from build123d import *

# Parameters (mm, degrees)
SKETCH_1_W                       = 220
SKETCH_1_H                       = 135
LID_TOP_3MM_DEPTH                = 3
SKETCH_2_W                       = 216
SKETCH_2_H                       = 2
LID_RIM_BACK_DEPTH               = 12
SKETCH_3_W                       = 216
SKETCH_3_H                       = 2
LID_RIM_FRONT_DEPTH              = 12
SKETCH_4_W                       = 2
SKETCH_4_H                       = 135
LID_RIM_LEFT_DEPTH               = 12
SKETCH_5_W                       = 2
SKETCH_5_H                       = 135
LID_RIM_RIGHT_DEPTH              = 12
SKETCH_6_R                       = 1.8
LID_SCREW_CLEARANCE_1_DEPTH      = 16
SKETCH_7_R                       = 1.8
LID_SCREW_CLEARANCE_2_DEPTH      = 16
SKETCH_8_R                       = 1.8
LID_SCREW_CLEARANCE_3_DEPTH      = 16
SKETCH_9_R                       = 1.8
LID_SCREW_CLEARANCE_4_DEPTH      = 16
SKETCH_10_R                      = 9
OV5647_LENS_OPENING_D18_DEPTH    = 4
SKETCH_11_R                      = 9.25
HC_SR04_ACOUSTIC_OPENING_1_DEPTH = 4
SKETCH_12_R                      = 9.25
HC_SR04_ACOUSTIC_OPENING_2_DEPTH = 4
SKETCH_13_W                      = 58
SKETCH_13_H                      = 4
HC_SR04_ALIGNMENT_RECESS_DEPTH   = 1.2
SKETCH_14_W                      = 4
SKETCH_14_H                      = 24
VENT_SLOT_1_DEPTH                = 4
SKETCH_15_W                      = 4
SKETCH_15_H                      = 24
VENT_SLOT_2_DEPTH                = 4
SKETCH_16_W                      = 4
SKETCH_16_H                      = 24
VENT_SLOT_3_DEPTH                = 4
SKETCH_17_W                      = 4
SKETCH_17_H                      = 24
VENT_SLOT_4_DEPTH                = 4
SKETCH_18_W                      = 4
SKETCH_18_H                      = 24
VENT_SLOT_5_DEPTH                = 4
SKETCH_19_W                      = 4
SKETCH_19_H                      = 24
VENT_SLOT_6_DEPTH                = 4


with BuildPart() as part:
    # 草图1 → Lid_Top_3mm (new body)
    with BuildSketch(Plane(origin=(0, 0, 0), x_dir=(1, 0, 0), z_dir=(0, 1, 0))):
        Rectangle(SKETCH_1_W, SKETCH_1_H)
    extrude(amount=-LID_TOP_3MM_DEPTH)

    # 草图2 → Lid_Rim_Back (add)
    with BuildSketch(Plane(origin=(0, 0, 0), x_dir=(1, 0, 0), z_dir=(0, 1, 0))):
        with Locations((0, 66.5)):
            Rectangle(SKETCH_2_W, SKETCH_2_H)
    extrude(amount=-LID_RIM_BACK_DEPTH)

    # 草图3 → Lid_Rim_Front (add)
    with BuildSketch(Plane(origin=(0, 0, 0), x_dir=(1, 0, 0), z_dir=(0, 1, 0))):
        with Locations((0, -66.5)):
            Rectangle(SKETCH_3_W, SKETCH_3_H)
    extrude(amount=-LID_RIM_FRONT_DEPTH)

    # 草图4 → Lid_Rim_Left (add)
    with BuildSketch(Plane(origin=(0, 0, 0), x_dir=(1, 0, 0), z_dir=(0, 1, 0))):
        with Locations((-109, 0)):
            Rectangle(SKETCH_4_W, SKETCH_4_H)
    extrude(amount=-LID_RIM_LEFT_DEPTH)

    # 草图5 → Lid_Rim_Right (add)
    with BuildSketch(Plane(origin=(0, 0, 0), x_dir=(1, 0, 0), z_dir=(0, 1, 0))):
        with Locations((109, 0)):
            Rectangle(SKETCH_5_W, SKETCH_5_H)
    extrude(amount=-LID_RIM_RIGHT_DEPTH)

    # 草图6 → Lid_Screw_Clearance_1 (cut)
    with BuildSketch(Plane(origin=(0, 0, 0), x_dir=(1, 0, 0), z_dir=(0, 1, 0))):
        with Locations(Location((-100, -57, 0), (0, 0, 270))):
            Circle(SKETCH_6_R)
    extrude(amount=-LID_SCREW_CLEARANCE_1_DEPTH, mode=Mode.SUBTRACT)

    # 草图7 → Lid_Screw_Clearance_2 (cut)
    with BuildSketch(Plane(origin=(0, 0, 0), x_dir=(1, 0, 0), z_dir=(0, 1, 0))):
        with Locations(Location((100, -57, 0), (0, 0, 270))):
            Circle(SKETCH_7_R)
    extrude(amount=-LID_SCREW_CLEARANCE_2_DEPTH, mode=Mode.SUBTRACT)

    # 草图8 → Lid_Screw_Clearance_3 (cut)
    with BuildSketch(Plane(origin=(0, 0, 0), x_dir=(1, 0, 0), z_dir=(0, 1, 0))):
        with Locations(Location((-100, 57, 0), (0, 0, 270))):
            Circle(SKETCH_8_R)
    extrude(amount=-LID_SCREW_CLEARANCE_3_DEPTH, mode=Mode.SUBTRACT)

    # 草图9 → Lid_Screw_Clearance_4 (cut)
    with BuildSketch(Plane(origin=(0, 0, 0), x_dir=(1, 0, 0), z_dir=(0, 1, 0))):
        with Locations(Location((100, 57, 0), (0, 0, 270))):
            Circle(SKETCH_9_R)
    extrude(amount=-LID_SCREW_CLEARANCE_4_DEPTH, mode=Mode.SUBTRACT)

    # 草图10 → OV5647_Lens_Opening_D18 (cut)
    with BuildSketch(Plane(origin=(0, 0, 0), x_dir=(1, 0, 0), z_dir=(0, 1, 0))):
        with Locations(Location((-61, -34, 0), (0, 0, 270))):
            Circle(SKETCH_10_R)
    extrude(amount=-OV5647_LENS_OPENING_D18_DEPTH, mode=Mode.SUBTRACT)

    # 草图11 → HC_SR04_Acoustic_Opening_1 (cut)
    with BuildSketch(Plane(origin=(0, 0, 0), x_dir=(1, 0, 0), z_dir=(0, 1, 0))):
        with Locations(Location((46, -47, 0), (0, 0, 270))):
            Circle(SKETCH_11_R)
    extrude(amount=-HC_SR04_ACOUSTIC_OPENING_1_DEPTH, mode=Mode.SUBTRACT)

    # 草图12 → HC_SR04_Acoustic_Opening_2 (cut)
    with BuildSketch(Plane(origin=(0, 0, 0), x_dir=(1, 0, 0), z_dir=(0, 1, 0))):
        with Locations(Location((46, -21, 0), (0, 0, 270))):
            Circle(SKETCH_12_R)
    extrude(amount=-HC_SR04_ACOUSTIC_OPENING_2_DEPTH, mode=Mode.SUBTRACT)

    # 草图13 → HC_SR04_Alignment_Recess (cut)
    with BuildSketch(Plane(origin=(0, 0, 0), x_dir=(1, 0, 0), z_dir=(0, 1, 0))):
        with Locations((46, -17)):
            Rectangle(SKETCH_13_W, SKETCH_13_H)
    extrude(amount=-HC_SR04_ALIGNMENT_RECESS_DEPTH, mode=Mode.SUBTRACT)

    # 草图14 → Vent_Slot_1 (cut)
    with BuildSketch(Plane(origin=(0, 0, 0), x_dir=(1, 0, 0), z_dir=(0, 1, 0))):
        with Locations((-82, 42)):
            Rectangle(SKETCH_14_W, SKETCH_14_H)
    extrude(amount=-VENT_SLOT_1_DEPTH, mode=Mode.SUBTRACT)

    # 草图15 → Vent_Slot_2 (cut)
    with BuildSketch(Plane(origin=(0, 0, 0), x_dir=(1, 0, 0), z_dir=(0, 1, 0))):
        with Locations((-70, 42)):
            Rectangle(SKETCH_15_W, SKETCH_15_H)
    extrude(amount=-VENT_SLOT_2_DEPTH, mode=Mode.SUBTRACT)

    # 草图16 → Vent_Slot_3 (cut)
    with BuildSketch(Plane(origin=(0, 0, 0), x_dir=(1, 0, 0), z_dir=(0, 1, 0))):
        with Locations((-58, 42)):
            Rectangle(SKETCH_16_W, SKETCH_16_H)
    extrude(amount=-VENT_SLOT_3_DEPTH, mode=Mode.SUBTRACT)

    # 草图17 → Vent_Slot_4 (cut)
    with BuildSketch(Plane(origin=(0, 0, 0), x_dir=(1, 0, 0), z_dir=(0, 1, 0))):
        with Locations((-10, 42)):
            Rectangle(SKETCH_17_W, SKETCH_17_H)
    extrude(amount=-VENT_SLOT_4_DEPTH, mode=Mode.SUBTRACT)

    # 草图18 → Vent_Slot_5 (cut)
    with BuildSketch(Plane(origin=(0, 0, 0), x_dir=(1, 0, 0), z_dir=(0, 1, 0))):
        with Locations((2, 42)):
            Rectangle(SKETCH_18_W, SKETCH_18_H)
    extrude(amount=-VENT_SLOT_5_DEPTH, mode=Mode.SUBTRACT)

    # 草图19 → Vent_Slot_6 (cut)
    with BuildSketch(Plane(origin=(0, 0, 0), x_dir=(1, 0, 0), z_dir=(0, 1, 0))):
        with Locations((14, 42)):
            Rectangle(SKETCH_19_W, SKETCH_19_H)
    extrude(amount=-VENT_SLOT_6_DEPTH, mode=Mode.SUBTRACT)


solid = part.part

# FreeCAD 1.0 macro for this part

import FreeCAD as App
import Part
import Sketcher
from FreeCAD import Vector
Q = App.Units.Quantity


def add_polygon(sketch, points):
    """Adds a closed chain of lines whose ends are joined by coincident constraints."""
    first, n = sketch.GeometryCount, len(points)
    for a, b in zip(points, points[1:] + points[:1]):
        sketch.addGeometry(Part.LineSegment(App.Vector(*a, 0), App.Vector(*b, 0)), False)
    for i in range(n):
        sketch.addConstraint(Sketcher.Constraint("Coincident", first + i, 2, first + (i + 1) % n, 1))

doc = App.newDocument("Part")
params = doc.addObject("Spreadsheet::Sheet", "Params")
for row, (alias, value) in enumerate([
    ("sketch1_width", "220 mm"),
    ("sketch1_height", "135 mm"),
    ("pad1_length", "3 mm"),
    ("sketch2_width", "216 mm"),
    ("sketch2_height", "2 mm"),
    ("pad2_length", "12 mm"),
    ("sketch3_width", "216 mm"),
    ("sketch3_height", "2 mm"),
    ("pad3_length", "12 mm"),
    ("sketch4_width", "2 mm"),
    ("sketch4_height", "135 mm"),
    ("pad4_length", "12 mm"),
    ("sketch5_width", "2 mm"),
    ("sketch5_height", "135 mm"),
    ("pad5_length", "12 mm"),
    ("sketch6_diameter", "3.6 mm"),
    ("pocket1_length", "16 mm"),
    ("sketch7_diameter", "3.6 mm"),
    ("pocket2_length", "16 mm"),
    ("sketch8_diameter", "3.6 mm"),
    ("pocket3_length", "16 mm"),
    ("sketch9_diameter", "3.6 mm"),
    ("pocket4_length", "16 mm"),
    ("sketch10_diameter", "18 mm"),
    ("pocket5_length", "4 mm"),
    ("sketch11_diameter", "18.5 mm"),
    ("pocket6_length", "4 mm"),
    ("sketch12_diameter", "18.5 mm"),
    ("pocket7_length", "4 mm"),
    ("sketch13_width", "58 mm"),
    ("sketch13_height", "4 mm"),
    ("pocket8_length", "1.2 mm"),
    ("sketch14_width", "4 mm"),
    ("sketch14_height", "24 mm"),
    ("pocket9_length", "4 mm"),
    ("sketch15_width", "4 mm"),
    ("sketch15_height", "24 mm"),
    ("pocket10_length", "4 mm"),
    ("sketch16_width", "4 mm"),
    ("sketch16_height", "24 mm"),
    ("pocket11_length", "4 mm"),
    ("sketch17_width", "4 mm"),
    ("sketch17_height", "24 mm"),
    ("pocket12_length", "4 mm"),
    ("sketch18_width", "4 mm"),
    ("sketch18_height", "24 mm"),
    ("pocket13_length", "4 mm"),
    ("sketch19_width", "4 mm"),
    ("sketch19_height", "24 mm"),
    ("pocket14_length", "4 mm"),
], start=1):
    params.set(f"A{row}", alias)
    params.set(f"B{row}", "=" + value)
    params.setAlias(f"B{row}", alias)

body = doc.addObject("PartDesign::Body", "Body")

sketch1 = doc.addObject("Sketcher::SketchObject", "Sketch")
body.addObject(sketch1)
sketch1.AttachmentSupport = (doc.XZ_Plane, [""])
sketch1.MapMode = "FlatFace"
add_polygon(sketch1, [(-110, -67.5), (-110, 67.5), (110, 67.5), (110, -67.5)])
sketch1.addConstraint([
    Sketcher.Constraint("Vertical", 0),
    Sketcher.Constraint("Horizontal", 1),
    Sketcher.Constraint("Vertical", 2),
    Sketcher.Constraint("Horizontal", 3),
    Sketcher.Constraint("Symmetric", 0, 2, 2, 2, -1, 1),
    Sketcher.Constraint("DistanceX", 1, 1, 1, 2, Q("220 mm")),
    Sketcher.Constraint("DistanceY", 0, 1, 0, 2, Q("135 mm")),
])
sketch1.setExpression("Constraints[9]", "Params.sketch1_width")
sketch1.setExpression("Constraints[10]", "Params.sketch1_height")
pad1 = doc.addObject("PartDesign::Pad", "Pad")
body.addObject(pad1)
pad1.Profile = sketch1
pad1.setExpression("Length", "Params.pad1_length")

sketch2 = doc.addObject("Sketcher::SketchObject", "Sketch001")
body.addObject(sketch2)
sketch2.AttachmentSupport = (doc.XZ_Plane, [""])
sketch2.MapMode = "FlatFace"
add_polygon(sketch2, [(-108, -67.5), (-108, -65.5), (108, -65.5), (108, -67.5)])
sketch2.addConstraint([
    Sketcher.Constraint("Vertical", 0),
    Sketcher.Constraint("Horizontal", 1),
    Sketcher.Constraint("Vertical", 2),
    Sketcher.Constraint("Horizontal", 3),
    Sketcher.Constraint("DistanceX", 1, 1, 1, 2, Q("216 mm")),
    Sketcher.Constraint("DistanceY", 0, 1, 0, 2, Q("2 mm")),
    Sketcher.Constraint("DistanceX", 0, 2, -1, 1, Q("108 mm")),
    Sketcher.Constraint("DistanceY", 0, 2, -1, 1, Q("65.5 mm")),
])
sketch2.setExpression("Constraints[8]", "Params.sketch2_width")
sketch2.setExpression("Constraints[9]", "Params.sketch2_height")
pad2 = doc.addObject("PartDesign::Pad", "Pad001")
body.addObject(pad2)
pad2.Profile = sketch2
pad2.setExpression("Length", "Params.pad2_length")

sketch3 = doc.addObject("Sketcher::SketchObject", "Sketch002")
body.addObject(sketch3)
sketch3.AttachmentSupport = (doc.XZ_Plane, [""])
sketch3.MapMode = "FlatFace"
add_polygon(sketch3, [(-108, 65.5), (-108, 67.5), (108, 67.5), (108, 65.5)])
sketch3.addConstraint([
    Sketcher.Constraint("Vertical", 0),
    Sketcher.Constraint("Horizontal", 1),
    Sketcher.Constraint("Vertical", 2),
    Sketcher.Constraint("Horizontal", 3),
    Sketcher.Constraint("DistanceX", 1, 1, 1, 2, Q("216 mm")),
    Sketcher.Constraint("DistanceY", 0, 1, 0, 2, Q("2 mm")),
    Sketcher.Constraint("DistanceX", 0, 2, -1, 1, Q("108 mm")),
    Sketcher.Constraint("DistanceY", -1, 1, 0, 2, Q("67.5 mm")),
])
sketch3.setExpression("Constraints[8]", "Params.sketch3_width")
sketch3.setExpression("Constraints[9]", "Params.sketch3_height")
pad3 = doc.addObject("PartDesign::Pad", "Pad002")
body.addObject(pad3)
pad3.Profile = sketch3
pad3.setExpression("Length", "Params.pad3_length")

sketch4 = doc.addObject("Sketcher::SketchObject", "Sketch003")
body.addObject(sketch4)
sketch4.AttachmentSupport = (doc.XZ_Plane, [""])
sketch4.MapMode = "FlatFace"
add_polygon(sketch4, [(-110, -67.5), (-110, 67.5), (-108, 67.5), (-108, -67.5)])
sketch4.addConstraint([
    Sketcher.Constraint("Vertical", 0),
    Sketcher.Constraint("Horizontal", 1),
    Sketcher.Constraint("Vertical", 2),
    Sketcher.Constraint("Horizontal", 3),
    Sketcher.Constraint("DistanceX", 1, 1, 1, 2, Q("2 mm")),
    Sketcher.Constraint("DistanceY", 0, 1, 0, 2, Q("135 mm")),
    Sketcher.Constraint("DistanceX", 0, 2, -1, 1, Q("110 mm")),
    Sketcher.Constraint("DistanceY", -1, 1, 0, 2, Q("67.5 mm")),
])
sketch4.setExpression("Constraints[8]", "Params.sketch4_width")
sketch4.setExpression("Constraints[9]", "Params.sketch4_height")
pad4 = doc.addObject("PartDesign::Pad", "Pad003")
body.addObject(pad4)
pad4.Profile = sketch4
pad4.setExpression("Length", "Params.pad4_length")

sketch5 = doc.addObject("Sketcher::SketchObject", "Sketch004")
body.addObject(sketch5)
sketch5.AttachmentSupport = (doc.XZ_Plane, [""])
sketch5.MapMode = "FlatFace"
add_polygon(sketch5, [(108, -67.5), (108, 67.5), (110, 67.5), (110, -67.5)])
sketch5.addConstraint([
    Sketcher.Constraint("Vertical", 0),
    Sketcher.Constraint("Horizontal", 1),
    Sketcher.Constraint("Vertical", 2),
    Sketcher.Constraint("Horizontal", 3),
    Sketcher.Constraint("DistanceX", 1, 1, 1, 2, Q("2 mm")),
    Sketcher.Constraint("DistanceY", 0, 1, 0, 2, Q("135 mm")),
    Sketcher.Constraint("DistanceX", -1, 1, 0, 2, Q("108 mm")),
    Sketcher.Constraint("DistanceY", -1, 1, 0, 2, Q("67.5 mm")),
])
sketch5.setExpression("Constraints[8]", "Params.sketch5_width")
sketch5.setExpression("Constraints[9]", "Params.sketch5_height")
pad5 = doc.addObject("PartDesign::Pad", "Pad004")
body.addObject(pad5)
pad5.Profile = sketch5
pad5.setExpression("Length", "Params.pad5_length")

sketch6 = doc.addObject("Sketcher::SketchObject", "Sketch005")
body.addObject(sketch6)
sketch6.AttachmentSupport = (doc.XZ_Plane, [""])
sketch6.MapMode = "FlatFace"
sketch6.addGeometry(Part.Circle(Vector(-100, 57, 0), Vector(0, 0, 1), 1.8), False)
sketch6.addConstraint([
    Sketcher.Constraint("Diameter", 0, Q("3.6 mm")),
    Sketcher.Constraint("DistanceX", 0, 3, -1, 1, Q("100 mm")),
    Sketcher.Constraint("DistanceY", -1, 1, 0, 3, Q("57 mm")),
])
sketch6.setExpression("Constraints[0]", "Params.sketch6_diameter")
pocket1 = doc.addObject("PartDesign::Pocket", "Pocket")
body.addObject(pocket1)
pocket1.Profile = sketch6
pocket1.setExpression("Length", "Params.pocket1_length")
pocket1.Reversed = True

sketch7 = doc.addObject("Sketcher::SketchObject", "Sketch006")
body.addObject(sketch7)
sketch7.AttachmentSupport = (doc.XZ_Plane, [""])
sketch7.MapMode = "FlatFace"
sketch7.addGeometry(Part.Circle(Vector(100, 57, 0), Vector(0, 0, 1), 1.8), False)
sketch7.addConstraint([
    Sketcher.Constraint("Diameter", 0, Q("3.6 mm")),
    Sketcher.Constraint("DistanceX", -1, 1, 0, 3, Q("100 mm")),
    Sketcher.Constraint("DistanceY", -1, 1, 0, 3, Q("57 mm")),
])
sketch7.setExpression("Constraints[0]", "Params.sketch7_diameter")
pocket2 = doc.addObject("PartDesign::Pocket", "Pocket001")
body.addObject(pocket2)
pocket2.Profile = sketch7
pocket2.setExpression("Length", "Params.pocket2_length")
pocket2.Reversed = True

sketch8 = doc.addObject("Sketcher::SketchObject", "Sketch007")
body.addObject(sketch8)
sketch8.AttachmentSupport = (doc.XZ_Plane, [""])
sketch8.MapMode = "FlatFace"
sketch8.addGeometry(Part.Circle(Vector(-100, -57, 0), Vector(0, 0, 1), 1.8), False)
sketch8.addConstraint([
    Sketcher.Constraint("Diameter", 0, Q("3.6 mm")),
    Sketcher.Constraint("DistanceX", 0, 3, -1, 1, Q("100 mm")),
    Sketcher.Constraint("DistanceY", 0, 3, -1, 1, Q("57 mm")),
])
sketch8.setExpression("Constraints[0]", "Params.sketch8_diameter")
pocket3 = doc.addObject("PartDesign::Pocket", "Pocket002")
body.addObject(pocket3)
pocket3.Profile = sketch8
pocket3.setExpression("Length", "Params.pocket3_length")
pocket3.Reversed = True

sketch9 = doc.addObject("Sketcher::SketchObject", "Sketch008")
body.addObject(sketch9)
sketch9.AttachmentSupport = (doc.XZ_Plane, [""])
sketch9.MapMode = "FlatFace"
sketch9.addGeometry(Part.Circle(Vector(100, -57, 0), Vector(0, 0, 1), 1.8), False)
sketch9.addConstraint([
    Sketcher.Constraint("Diameter", 0, Q("3.6 mm")),
    Sketcher.Constraint("DistanceX", -1, 1, 0, 3, Q("100 mm")),
    Sketcher.Constraint("DistanceY", 0, 3, -1, 1, Q("57 mm")),
])
sketch9.setExpression("Constraints[0]", "Params.sketch9_diameter")
pocket4 = doc.addObject("PartDesign::Pocket", "Pocket003")
body.addObject(pocket4)
pocket4.Profile = sketch9
pocket4.setExpression("Length", "Params.pocket4_length")
pocket4.Reversed = True

sketch10 = doc.addObject("Sketcher::SketchObject", "Sketch009")
body.addObject(sketch10)
sketch10.AttachmentSupport = (doc.XZ_Plane, [""])
sketch10.MapMode = "FlatFace"
sketch10.addGeometry(Part.Circle(Vector(-61, 34, 0), Vector(0, 0, 1), 9), False)
sketch10.addConstraint([
    Sketcher.Constraint("Diameter", 0, Q("18 mm")),
    Sketcher.Constraint("DistanceX", 0, 3, -1, 1, Q("61 mm")),
    Sketcher.Constraint("DistanceY", -1, 1, 0, 3, Q("34 mm")),
])
sketch10.setExpression("Constraints[0]", "Params.sketch10_diameter")
pocket5 = doc.addObject("PartDesign::Pocket", "Pocket004")
body.addObject(pocket5)
pocket5.Profile = sketch10
pocket5.setExpression("Length", "Params.pocket5_length")
pocket5.Reversed = True

sketch11 = doc.addObject("Sketcher::SketchObject", "Sketch010")
body.addObject(sketch11)
sketch11.AttachmentSupport = (doc.XZ_Plane, [""])
sketch11.MapMode = "FlatFace"
sketch11.addGeometry(Part.Circle(Vector(46, 47, 0), Vector(0, 0, 1), 9.25), False)
sketch11.addConstraint([
    Sketcher.Constraint("Diameter", 0, Q("18.5 mm")),
    Sketcher.Constraint("DistanceX", -1, 1, 0, 3, Q("46 mm")),
    Sketcher.Constraint("DistanceY", -1, 1, 0, 3, Q("47 mm")),
])
sketch11.setExpression("Constraints[0]", "Params.sketch11_diameter")
pocket6 = doc.addObject("PartDesign::Pocket", "Pocket005")
body.addObject(pocket6)
pocket6.Profile = sketch11
pocket6.setExpression("Length", "Params.pocket6_length")
pocket6.Reversed = True

sketch12 = doc.addObject("Sketcher::SketchObject", "Sketch011")
body.addObject(sketch12)
sketch12.AttachmentSupport = (doc.XZ_Plane, [""])
sketch12.MapMode = "FlatFace"
sketch12.addGeometry(Part.Circle(Vector(46, 21, 0), Vector(0, 0, 1), 9.25), False)
sketch12.addConstraint([
    Sketcher.Constraint("Diameter", 0, Q("18.5 mm")),
    Sketcher.Constraint("DistanceX", -1, 1, 0, 3, Q("46 mm")),
    Sketcher.Constraint("DistanceY", -1, 1, 0, 3, Q("21 mm")),
])
sketch12.setExpression("Constraints[0]", "Params.sketch12_diameter")
pocket7 = doc.addObject("PartDesign::Pocket", "Pocket006")
body.addObject(pocket7)
pocket7.Profile = sketch12
pocket7.setExpression("Length", "Params.pocket7_length")
pocket7.Reversed = True

sketch13 = doc.addObject("Sketcher::SketchObject", "Sketch012")
body.addObject(sketch13)
sketch13.AttachmentSupport = (doc.XZ_Plane, [""])
sketch13.MapMode = "FlatFace"
add_polygon(sketch13, [(17, 15), (17, 19), (75, 19), (75, 15)])
sketch13.addConstraint([
    Sketcher.Constraint("Vertical", 0),
    Sketcher.Constraint("Horizontal", 1),
    Sketcher.Constraint("Vertical", 2),
    Sketcher.Constraint("Horizontal", 3),
    Sketcher.Constraint("DistanceX", 1, 1, 1, 2, Q("58 mm")),
    Sketcher.Constraint("DistanceY", 0, 1, 0, 2, Q("4 mm")),
    Sketcher.Constraint("DistanceX", -1, 1, 0, 2, Q("17 mm")),
    Sketcher.Constraint("DistanceY", -1, 1, 0, 2, Q("19 mm")),
])
sketch13.setExpression("Constraints[8]", "Params.sketch13_width")
sketch13.setExpression("Constraints[9]", "Params.sketch13_height")
pocket8 = doc.addObject("PartDesign::Pocket", "Pocket007")
body.addObject(pocket8)
pocket8.Profile = sketch13
pocket8.setExpression("Length", "Params.pocket8_length")
pocket8.Reversed = True

sketch14 = doc.addObject("Sketcher::SketchObject", "Sketch013")
body.addObject(sketch14)
sketch14.AttachmentSupport = (doc.XZ_Plane, [""])
sketch14.MapMode = "FlatFace"
add_polygon(sketch14, [(-84, -54), (-84, -30), (-80, -30), (-80, -54)])
sketch14.addConstraint([
    Sketcher.Constraint("Vertical", 0),
    Sketcher.Constraint("Horizontal", 1),
    Sketcher.Constraint("Vertical", 2),
    Sketcher.Constraint("Horizontal", 3),
    Sketcher.Constraint("DistanceX", 1, 1, 1, 2, Q("4 mm")),
    Sketcher.Constraint("DistanceY", 0, 1, 0, 2, Q("24 mm")),
    Sketcher.Constraint("DistanceX", 0, 2, -1, 1, Q("84 mm")),
    Sketcher.Constraint("DistanceY", 0, 2, -1, 1, Q("30 mm")),
])
sketch14.setExpression("Constraints[8]", "Params.sketch14_width")
sketch14.setExpression("Constraints[9]", "Params.sketch14_height")
pocket9 = doc.addObject("PartDesign::Pocket", "Pocket008")
body.addObject(pocket9)
pocket9.Profile = sketch14
pocket9.setExpression("Length", "Params.pocket9_length")
pocket9.Reversed = True

sketch15 = doc.addObject("Sketcher::SketchObject", "Sketch014")
body.addObject(sketch15)
sketch15.AttachmentSupport = (doc.XZ_Plane, [""])
sketch15.MapMode = "FlatFace"
add_polygon(sketch15, [(-72, -54), (-72, -30), (-68, -30), (-68, -54)])
sketch15.addConstraint([
    Sketcher.Constraint("Vertical", 0),
    Sketcher.Constraint("Horizontal", 1),
    Sketcher.Constraint("Vertical", 2),
    Sketcher.Constraint("Horizontal", 3),
    Sketcher.Constraint("DistanceX", 1, 1, 1, 2, Q("4 mm")),
    Sketcher.Constraint("DistanceY", 0, 1, 0, 2, Q("24 mm")),
    Sketcher.Constraint("DistanceX", 0, 2, -1, 1, Q("72 mm")),
    Sketcher.Constraint("DistanceY", 0, 2, -1, 1, Q("30 mm")),
])
sketch15.setExpression("Constraints[8]", "Params.sketch15_width")
sketch15.setExpression("Constraints[9]", "Params.sketch15_height")
pocket10 = doc.addObject("PartDesign::Pocket", "Pocket009")
body.addObject(pocket10)
pocket10.Profile = sketch15
pocket10.setExpression("Length", "Params.pocket10_length")
pocket10.Reversed = True

sketch16 = doc.addObject("Sketcher::SketchObject", "Sketch015")
body.addObject(sketch16)
sketch16.AttachmentSupport = (doc.XZ_Plane, [""])
sketch16.MapMode = "FlatFace"
add_polygon(sketch16, [(-60, -54), (-60, -30), (-56, -30), (-56, -54)])
sketch16.addConstraint([
    Sketcher.Constraint("Vertical", 0),
    Sketcher.Constraint("Horizontal", 1),
    Sketcher.Constraint("Vertical", 2),
    Sketcher.Constraint("Horizontal", 3),
    Sketcher.Constraint("DistanceX", 1, 1, 1, 2, Q("4 mm")),
    Sketcher.Constraint("DistanceY", 0, 1, 0, 2, Q("24 mm")),
    Sketcher.Constraint("DistanceX", 0, 2, -1, 1, Q("60 mm")),
    Sketcher.Constraint("DistanceY", 0, 2, -1, 1, Q("30 mm")),
])
sketch16.setExpression("Constraints[8]", "Params.sketch16_width")
sketch16.setExpression("Constraints[9]", "Params.sketch16_height")
pocket11 = doc.addObject("PartDesign::Pocket", "Pocket010")
body.addObject(pocket11)
pocket11.Profile = sketch16
pocket11.setExpression("Length", "Params.pocket11_length")
pocket11.Reversed = True

sketch17 = doc.addObject("Sketcher::SketchObject", "Sketch016")
body.addObject(sketch17)
sketch17.AttachmentSupport = (doc.XZ_Plane, [""])
sketch17.MapMode = "FlatFace"
add_polygon(sketch17, [(-12, -54), (-12, -30), (-8, -30), (-8, -54)])
sketch17.addConstraint([
    Sketcher.Constraint("Vertical", 0),
    Sketcher.Constraint("Horizontal", 1),
    Sketcher.Constraint("Vertical", 2),
    Sketcher.Constraint("Horizontal", 3),
    Sketcher.Constraint("DistanceX", 1, 1, 1, 2, Q("4 mm")),
    Sketcher.Constraint("DistanceY", 0, 1, 0, 2, Q("24 mm")),
    Sketcher.Constraint("DistanceX", 0, 2, -1, 1, Q("12 mm")),
    Sketcher.Constraint("DistanceY", 0, 2, -1, 1, Q("30 mm")),
])
sketch17.setExpression("Constraints[8]", "Params.sketch17_width")
sketch17.setExpression("Constraints[9]", "Params.sketch17_height")
pocket12 = doc.addObject("PartDesign::Pocket", "Pocket011")
body.addObject(pocket12)
pocket12.Profile = sketch17
pocket12.setExpression("Length", "Params.pocket12_length")
pocket12.Reversed = True

sketch18 = doc.addObject("Sketcher::SketchObject", "Sketch017")
body.addObject(sketch18)
sketch18.AttachmentSupport = (doc.XZ_Plane, [""])
sketch18.MapMode = "FlatFace"
add_polygon(sketch18, [(0, -54), (0, -30), (4, -30), (4, -54)])
sketch18.addConstraint([
    Sketcher.Constraint("Vertical", 0),
    Sketcher.Constraint("Horizontal", 1),
    Sketcher.Constraint("Vertical", 2),
    Sketcher.Constraint("Horizontal", 3),
    Sketcher.Constraint("PointOnObject", 0, 2, -2),
    Sketcher.Constraint("DistanceX", 1, 1, 1, 2, Q("4 mm")),
    Sketcher.Constraint("DistanceY", 0, 1, 0, 2, Q("24 mm")),
    Sketcher.Constraint("DistanceY", 0, 2, -1, 1, Q("30 mm")),
])
sketch18.setExpression("Constraints[9]", "Params.sketch18_width")
sketch18.setExpression("Constraints[10]", "Params.sketch18_height")
pocket13 = doc.addObject("PartDesign::Pocket", "Pocket012")
body.addObject(pocket13)
pocket13.Profile = sketch18
pocket13.setExpression("Length", "Params.pocket13_length")
pocket13.Reversed = True

sketch19 = doc.addObject("Sketcher::SketchObject", "Sketch018")
body.addObject(sketch19)
sketch19.AttachmentSupport = (doc.XZ_Plane, [""])
sketch19.MapMode = "FlatFace"
add_polygon(sketch19, [(12, -54), (12, -30), (16, -30), (16, -54)])
sketch19.addConstraint([
    Sketcher.Constraint("Vertical", 0),
    Sketcher.Constraint("Horizontal", 1),
    Sketcher.Constraint("Vertical", 2),
    Sketcher.Constraint("Horizontal", 3),
    Sketcher.Constraint("DistanceX", 1, 1, 1, 2, Q("4 mm")),
    Sketcher.Constraint("DistanceY", 0, 1, 0, 2, Q("24 mm")),
    Sketcher.Constraint("DistanceX", -1, 1, 0, 2, Q("12 mm")),
    Sketcher.Constraint("DistanceY", 0, 2, -1, 1, Q("30 mm")),
])
sketch19.setExpression("Constraints[8]", "Params.sketch19_width")
sketch19.setExpression("Constraints[9]", "Params.sketch19_height")
pocket14 = doc.addObject("PartDesign::Pocket", "Pocket013")
body.addObject(pocket14)
pocket14.Profile = sketch19
pocket14.setExpression("Length", "Params.pocket14_length")
pocket14.Reversed = True

doc.recompute()
